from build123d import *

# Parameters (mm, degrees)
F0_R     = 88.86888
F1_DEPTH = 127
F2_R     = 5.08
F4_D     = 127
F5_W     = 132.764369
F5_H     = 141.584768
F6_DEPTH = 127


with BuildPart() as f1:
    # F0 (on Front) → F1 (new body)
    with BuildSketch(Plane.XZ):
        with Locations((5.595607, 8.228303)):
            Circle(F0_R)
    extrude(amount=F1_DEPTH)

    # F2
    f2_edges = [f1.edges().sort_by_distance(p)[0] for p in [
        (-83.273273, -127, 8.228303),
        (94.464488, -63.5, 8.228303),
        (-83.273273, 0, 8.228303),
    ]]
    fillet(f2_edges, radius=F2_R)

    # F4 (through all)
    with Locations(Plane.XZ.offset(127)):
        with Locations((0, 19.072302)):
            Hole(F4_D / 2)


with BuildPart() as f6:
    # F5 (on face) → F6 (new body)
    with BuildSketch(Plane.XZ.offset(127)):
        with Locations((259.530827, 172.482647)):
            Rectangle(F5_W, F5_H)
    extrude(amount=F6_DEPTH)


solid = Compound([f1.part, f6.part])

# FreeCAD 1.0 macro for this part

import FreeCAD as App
import Part
import Sketcher
Q = App.Units.Quantity

doc = App.newDocument("Part")
body = doc.addObject("PartDesign::Body", "Body")

# Sketch on XZ plane
sketch1 = body.newObject("Sketcher::SketchObject", "Sketch")
sketch1.AttachmentSupport = (doc.getObject("XZ_Plane"), [""])
sketch1.MapMode = "FlatFace"
sketch1.addGeometry(Part.Circle(App.Vector(6, 8, 0), App.Vector(0, 0, 1), 89), False)
sketch1.addConstraint(Sketcher.Constraint("Diameter", 0, 177.73776))
sketch1.addConstraint(Sketcher.Constraint("DistanceX", -1, 1, 0, 3, 5.595607))
sketch1.addConstraint(Sketcher.Constraint("DistanceY", -1, 1, 0, 3, 8.228303))
pad1 = body.newObject("PartDesign::Pad", "Pad")
pad1.Profile = sketch1
pad1.Length = Q("5 in")
doc.recompute()

fillet = body.newObject("PartDesign::Fillet", "Fillet")
fillet.Base = (pad1, ["Edge1"])
fillet.UseAllEdges = True
fillet.Radius = Q("0.2 in")

# Sketch on XZ plane
sketch2 = body.newObject("Sketcher::SketchObject", "Sketch001")
sketch2.AttachmentSupport = (doc.getObject("XZ_Plane"), [""])
sketch2.MapMode = "FlatFace"
sketch2.AttachmentOffset = App.Placement(App.Vector(0, 0, 5 * 25.4), App.Rotation())
sketch2.addGeometry(Part.Circle(App.Vector(0, 19, 0), App.Vector(0, 0, 1), 64), False)
sketch2.addConstraint(Sketcher.Constraint("PointOnObject", 0, 3, -2))
sketch2.addConstraint(Sketcher.Constraint("Diameter", 0, Q("5 in")))
sketch2.addConstraint(Sketcher.Constraint("DistanceY", -1, 1, 0, 3, 19.072302))
doc.recompute()
hole = body.newObject("PartDesign::Hole", "Hole")
hole.Profile = sketch2
hole.ThreadType = "None"
hole.Diameter = Q("5 in")
hole.DepthType = "ThroughAll"
body2 = doc.addObject("PartDesign::Body", "Body001")

# Sketch on XZ plane
sketch3 = body2.newObject("Sketcher::SketchObject", "Sketch002")
sketch3.AttachmentSupport = (doc.getObject("XZ_Plane001"), [""])
sketch3.MapMode = "FlatFace"
sketch3.AttachmentOffset = App.Placement(App.Vector(0, 0, 5 * 25.4), App.Rotation())
sketch3.addGeometry(Part.LineSegment(App.Vector(193, 243, 0), App.Vector(193, 102, 0)), False)
sketch3.addGeometry(Part.LineSegment(App.Vector(193, 102, 0), App.Vector(326, 102, 0)), False)
sketch3.addGeometry(Part.LineSegment(App.Vector(326, 102, 0), App.Vector(326, 243, 0)), False)
sketch3.addGeometry(Part.LineSegment(App.Vector(326, 243, 0), App.Vector(193, 243, 0)), False)
sketch3.addConstraint(Sketcher.Constraint("Coincident", 0, 2, 1, 1))
sketch3.addConstraint(Sketcher.Constraint("Coincident", 1, 2, 2, 1))
sketch3.addConstraint(Sketcher.Constraint("Coincident", 2, 2, 3, 1))
sketch3.addConstraint(Sketcher.Constraint("Coincident", 3, 2, 0, 1))
sketch3.addConstraint(Sketcher.Constraint("Vertical", 0))
sketch3.addConstraint(Sketcher.Constraint("Horizontal", 1))
sketch3.addConstraint(Sketcher.Constraint("Vertical", 2))
sketch3.addConstraint(Sketcher.Constraint("Horizontal", 3))
sketch3.addConstraint(Sketcher.Constraint("DistanceX", 1, 1, 1, 2, 132.764369))
sketch3.addConstraint(Sketcher.Constraint("DistanceY", 0, 2, 0, 1, 141.584768))
sketch3.addConstraint(Sketcher.Constraint("DistanceX", -1, 1, 1, 2, 325.913011))
sketch3.addConstraint(Sketcher.Constraint("DistanceY", -1, 1, 2, 2, 243.275031))
pad2 = body2.newObject("PartDesign::Pad", "Pad001")
pad2.Profile = sketch3
pad2.Length = Q("5 in")

doc.recompute()
